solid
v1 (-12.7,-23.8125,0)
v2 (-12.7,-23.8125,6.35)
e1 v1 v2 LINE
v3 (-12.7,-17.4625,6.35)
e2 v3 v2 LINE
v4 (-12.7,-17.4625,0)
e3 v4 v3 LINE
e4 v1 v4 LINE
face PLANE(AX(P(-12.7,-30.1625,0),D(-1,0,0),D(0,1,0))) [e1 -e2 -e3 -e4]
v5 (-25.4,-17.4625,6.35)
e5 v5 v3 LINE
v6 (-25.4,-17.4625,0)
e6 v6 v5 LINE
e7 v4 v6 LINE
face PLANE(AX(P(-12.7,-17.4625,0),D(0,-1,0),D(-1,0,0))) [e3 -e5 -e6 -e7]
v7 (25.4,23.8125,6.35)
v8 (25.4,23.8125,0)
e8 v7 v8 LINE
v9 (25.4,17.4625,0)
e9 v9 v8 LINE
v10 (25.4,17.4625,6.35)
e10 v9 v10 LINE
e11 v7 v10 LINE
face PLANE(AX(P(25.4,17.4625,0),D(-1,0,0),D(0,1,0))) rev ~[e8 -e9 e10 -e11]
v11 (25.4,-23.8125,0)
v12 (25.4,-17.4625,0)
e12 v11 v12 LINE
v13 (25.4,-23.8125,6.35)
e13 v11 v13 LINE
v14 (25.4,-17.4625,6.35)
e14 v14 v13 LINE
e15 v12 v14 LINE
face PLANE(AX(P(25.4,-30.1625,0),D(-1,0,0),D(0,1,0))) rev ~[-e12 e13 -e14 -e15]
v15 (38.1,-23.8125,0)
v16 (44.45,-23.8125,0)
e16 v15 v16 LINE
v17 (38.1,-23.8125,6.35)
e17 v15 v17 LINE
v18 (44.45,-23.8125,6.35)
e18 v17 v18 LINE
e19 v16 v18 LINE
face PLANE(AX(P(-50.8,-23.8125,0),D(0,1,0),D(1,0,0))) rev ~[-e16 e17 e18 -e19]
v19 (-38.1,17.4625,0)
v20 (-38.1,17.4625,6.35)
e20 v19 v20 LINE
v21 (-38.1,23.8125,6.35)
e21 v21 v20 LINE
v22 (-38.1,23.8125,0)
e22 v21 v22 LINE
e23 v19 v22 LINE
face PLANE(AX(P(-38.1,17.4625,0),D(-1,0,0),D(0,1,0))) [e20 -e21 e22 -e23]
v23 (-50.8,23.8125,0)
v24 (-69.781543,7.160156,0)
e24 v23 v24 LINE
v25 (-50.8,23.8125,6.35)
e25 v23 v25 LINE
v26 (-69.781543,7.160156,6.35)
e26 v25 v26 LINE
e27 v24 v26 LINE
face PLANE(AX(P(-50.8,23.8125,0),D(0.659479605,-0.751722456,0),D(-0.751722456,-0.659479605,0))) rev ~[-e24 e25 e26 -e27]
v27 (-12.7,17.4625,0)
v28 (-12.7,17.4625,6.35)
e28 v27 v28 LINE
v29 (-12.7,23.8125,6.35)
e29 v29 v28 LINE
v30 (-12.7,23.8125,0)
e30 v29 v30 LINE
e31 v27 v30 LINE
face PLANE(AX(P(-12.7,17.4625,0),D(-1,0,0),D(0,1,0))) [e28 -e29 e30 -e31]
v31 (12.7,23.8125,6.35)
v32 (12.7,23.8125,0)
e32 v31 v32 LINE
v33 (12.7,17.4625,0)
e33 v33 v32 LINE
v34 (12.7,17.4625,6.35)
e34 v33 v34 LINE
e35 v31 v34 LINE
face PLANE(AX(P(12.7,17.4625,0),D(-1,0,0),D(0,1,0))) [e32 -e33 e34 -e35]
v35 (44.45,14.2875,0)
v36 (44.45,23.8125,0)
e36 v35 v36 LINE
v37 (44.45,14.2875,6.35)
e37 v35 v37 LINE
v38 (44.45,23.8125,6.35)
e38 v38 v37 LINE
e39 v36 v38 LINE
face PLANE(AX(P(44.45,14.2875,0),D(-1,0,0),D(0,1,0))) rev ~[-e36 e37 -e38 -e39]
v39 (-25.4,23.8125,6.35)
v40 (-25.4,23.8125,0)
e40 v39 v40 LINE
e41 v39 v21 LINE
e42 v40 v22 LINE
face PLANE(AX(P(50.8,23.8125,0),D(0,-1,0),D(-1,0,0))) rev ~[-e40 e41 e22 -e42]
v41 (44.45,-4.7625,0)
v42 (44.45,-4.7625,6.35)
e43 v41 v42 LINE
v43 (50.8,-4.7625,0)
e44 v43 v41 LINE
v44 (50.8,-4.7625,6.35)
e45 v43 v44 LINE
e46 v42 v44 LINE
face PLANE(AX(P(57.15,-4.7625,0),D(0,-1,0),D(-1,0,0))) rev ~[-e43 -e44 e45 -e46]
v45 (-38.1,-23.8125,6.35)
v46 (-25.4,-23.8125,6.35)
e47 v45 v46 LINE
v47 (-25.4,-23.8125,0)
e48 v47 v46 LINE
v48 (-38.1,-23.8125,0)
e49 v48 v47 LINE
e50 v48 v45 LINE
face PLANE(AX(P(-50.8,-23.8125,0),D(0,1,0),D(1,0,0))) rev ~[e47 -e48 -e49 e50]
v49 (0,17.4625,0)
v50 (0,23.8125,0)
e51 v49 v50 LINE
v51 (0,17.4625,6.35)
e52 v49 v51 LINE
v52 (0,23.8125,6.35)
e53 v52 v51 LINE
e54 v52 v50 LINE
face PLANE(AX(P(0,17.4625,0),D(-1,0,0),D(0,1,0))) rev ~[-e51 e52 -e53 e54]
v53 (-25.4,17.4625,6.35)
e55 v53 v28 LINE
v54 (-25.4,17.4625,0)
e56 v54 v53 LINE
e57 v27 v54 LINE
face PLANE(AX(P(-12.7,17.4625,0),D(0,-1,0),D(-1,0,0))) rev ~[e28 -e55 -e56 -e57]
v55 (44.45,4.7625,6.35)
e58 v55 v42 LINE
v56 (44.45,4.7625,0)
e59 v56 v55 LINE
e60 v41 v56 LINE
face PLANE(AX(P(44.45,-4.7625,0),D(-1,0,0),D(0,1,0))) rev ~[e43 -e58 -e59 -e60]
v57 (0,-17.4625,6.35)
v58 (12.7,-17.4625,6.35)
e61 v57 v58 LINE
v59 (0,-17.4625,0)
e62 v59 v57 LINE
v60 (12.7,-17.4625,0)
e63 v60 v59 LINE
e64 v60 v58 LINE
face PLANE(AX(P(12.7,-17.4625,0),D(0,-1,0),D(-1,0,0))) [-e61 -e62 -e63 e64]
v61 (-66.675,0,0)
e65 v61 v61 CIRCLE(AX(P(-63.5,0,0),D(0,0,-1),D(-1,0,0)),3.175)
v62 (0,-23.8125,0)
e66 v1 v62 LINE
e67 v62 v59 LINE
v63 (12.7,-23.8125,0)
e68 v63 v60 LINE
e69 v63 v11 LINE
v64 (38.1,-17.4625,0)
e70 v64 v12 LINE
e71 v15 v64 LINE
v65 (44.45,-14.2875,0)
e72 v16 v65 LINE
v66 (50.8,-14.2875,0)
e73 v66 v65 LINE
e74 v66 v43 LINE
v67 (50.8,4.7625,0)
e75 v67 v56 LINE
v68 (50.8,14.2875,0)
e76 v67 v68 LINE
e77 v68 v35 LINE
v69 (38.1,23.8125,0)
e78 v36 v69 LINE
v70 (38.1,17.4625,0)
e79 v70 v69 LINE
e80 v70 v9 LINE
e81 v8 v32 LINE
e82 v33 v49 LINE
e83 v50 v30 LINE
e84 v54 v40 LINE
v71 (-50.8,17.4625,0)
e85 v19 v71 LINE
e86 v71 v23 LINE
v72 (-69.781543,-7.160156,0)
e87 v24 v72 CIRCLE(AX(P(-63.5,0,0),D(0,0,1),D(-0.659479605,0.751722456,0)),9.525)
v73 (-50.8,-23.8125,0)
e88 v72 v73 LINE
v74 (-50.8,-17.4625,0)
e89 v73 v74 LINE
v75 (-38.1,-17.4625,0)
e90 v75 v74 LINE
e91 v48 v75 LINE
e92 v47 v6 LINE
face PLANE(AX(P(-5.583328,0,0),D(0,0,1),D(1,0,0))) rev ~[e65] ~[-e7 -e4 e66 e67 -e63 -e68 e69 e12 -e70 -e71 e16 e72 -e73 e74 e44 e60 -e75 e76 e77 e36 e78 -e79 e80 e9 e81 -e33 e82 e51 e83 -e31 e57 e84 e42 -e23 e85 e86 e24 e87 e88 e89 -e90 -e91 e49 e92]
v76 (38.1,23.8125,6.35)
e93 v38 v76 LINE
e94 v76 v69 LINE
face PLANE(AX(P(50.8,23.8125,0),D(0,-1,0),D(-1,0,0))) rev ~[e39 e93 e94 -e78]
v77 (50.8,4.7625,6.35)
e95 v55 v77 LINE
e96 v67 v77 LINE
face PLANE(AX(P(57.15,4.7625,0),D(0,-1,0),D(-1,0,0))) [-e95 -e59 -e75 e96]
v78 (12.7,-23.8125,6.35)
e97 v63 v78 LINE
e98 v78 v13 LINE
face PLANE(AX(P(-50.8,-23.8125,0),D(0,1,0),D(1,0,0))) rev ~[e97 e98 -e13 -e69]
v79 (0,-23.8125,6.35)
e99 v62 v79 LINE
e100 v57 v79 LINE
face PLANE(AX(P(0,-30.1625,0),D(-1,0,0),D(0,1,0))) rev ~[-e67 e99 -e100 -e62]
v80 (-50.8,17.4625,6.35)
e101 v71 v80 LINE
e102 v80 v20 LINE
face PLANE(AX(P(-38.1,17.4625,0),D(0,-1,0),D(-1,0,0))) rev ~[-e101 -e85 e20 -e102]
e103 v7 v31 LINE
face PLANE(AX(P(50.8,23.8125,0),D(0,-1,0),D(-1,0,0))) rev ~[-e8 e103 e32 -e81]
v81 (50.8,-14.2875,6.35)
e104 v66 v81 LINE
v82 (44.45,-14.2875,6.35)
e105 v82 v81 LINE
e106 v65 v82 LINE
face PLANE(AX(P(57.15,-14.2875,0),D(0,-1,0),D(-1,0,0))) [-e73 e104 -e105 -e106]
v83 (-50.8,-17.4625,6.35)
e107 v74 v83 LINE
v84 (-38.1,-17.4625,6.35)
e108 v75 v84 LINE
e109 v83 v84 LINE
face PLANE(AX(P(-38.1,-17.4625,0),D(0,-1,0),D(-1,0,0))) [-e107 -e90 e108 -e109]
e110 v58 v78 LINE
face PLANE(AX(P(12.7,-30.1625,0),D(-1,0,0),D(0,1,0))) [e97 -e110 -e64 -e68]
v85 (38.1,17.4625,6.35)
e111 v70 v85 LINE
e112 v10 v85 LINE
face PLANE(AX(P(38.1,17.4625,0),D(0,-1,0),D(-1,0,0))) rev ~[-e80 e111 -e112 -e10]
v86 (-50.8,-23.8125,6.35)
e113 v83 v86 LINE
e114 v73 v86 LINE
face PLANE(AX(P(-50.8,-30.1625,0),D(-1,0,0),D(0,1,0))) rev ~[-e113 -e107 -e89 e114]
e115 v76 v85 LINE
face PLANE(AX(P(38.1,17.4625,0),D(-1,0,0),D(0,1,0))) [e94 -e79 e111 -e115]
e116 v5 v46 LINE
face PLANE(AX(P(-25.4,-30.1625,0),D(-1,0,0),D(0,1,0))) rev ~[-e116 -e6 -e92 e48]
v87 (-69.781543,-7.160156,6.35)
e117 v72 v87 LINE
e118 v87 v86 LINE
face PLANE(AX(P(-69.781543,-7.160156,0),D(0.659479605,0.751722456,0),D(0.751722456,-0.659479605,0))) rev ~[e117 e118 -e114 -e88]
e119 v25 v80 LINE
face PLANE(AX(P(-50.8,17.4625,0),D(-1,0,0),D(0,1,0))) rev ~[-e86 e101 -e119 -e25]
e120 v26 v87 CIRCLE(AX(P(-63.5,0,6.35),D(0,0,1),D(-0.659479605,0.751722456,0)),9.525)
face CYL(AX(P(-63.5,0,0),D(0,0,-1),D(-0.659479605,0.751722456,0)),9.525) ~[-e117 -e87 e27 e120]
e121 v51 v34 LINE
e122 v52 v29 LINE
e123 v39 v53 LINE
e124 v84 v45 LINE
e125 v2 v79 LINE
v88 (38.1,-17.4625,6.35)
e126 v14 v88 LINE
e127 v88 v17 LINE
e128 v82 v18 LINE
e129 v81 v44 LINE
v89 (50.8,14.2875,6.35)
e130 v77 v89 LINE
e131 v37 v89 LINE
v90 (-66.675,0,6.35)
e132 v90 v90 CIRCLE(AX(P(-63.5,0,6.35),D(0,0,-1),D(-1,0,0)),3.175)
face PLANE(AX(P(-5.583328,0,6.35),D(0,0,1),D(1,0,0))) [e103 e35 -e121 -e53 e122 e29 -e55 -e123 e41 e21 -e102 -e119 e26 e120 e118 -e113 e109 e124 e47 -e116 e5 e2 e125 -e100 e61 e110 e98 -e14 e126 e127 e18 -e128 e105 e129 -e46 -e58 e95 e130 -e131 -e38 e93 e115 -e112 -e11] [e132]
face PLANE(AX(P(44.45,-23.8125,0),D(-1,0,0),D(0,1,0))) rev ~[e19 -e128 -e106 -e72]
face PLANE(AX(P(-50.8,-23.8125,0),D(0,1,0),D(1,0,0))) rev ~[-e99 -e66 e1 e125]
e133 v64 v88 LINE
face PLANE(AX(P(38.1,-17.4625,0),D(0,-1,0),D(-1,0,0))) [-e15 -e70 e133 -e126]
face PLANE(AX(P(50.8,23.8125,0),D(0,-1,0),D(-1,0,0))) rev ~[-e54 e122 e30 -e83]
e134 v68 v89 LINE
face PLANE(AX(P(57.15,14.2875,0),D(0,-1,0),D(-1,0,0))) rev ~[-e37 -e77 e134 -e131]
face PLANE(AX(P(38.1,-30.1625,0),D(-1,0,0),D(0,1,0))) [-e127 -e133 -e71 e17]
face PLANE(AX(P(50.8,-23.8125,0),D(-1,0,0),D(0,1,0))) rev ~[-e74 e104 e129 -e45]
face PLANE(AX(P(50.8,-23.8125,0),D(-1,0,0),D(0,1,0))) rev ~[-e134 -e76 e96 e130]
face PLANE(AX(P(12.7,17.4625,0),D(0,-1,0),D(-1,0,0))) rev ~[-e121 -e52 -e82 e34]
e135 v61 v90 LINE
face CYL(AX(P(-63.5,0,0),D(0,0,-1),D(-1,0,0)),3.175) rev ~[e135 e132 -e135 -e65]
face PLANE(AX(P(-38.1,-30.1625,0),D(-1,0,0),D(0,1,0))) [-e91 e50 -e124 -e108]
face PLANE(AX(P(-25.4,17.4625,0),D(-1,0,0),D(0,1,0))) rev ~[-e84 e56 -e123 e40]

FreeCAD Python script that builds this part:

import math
import FreeCAD as App
import Part
import Sketcher

V = App.Vector
Q = App.Units.Quantity

doc = App.newDocument("Part")
body = doc.addObject("PartDesign::Body", "Body")

# Sketch on XY plane
sketch1 = doc.addObject("Sketcher::SketchObject", "Sketch")
body.addObject(sketch1)
sketch1.AttachmentSupport = (doc.XY_Plane, [""])
sketch1.MapMode = "FlatFace"
sketch1.addGeometry([
    Part.LineSegment(V(-50.8, -23.8125, 0), V(50.8, -23.8125, 0)),  # 0
    Part.LineSegment(V(50.8, -23.8125, 0), V(50.8, 23.8125, 0)),  # 1
    Part.LineSegment(V(50.8, 23.8125, 0), V(-50.8, 23.8125, 0)),  # 2
    Part.LineSegment(V(-50.8, 23.8125, 0), V(-69.781543, 7.160156, 0)),  # 3
    Part.ArcOfCircle(Part.Circle(V(-63.5, 0, 0), V(0, 0, 1), 9.525), math.radians(131.260197), math.radians(228.739803)),  # 4
    Part.LineSegment(V(-69.781543, -7.160156, 0), V(-50.8, -23.8125, 0)),  # 5
], False)
sketch1.addConstraint([
    Sketcher.Constraint("Coincident", 0, 2, 1, 1),
    Sketcher.Constraint("Coincident", 1, 2, 2, 1),
    Sketcher.Constraint("Coincident", 2, 2, 3, 1),
    Sketcher.Constraint("Tangent", 3, 2, 4, 1),
    Sketcher.Constraint("Tangent", 4, 2, 5, 1),
    Sketcher.Constraint("Coincident", 5, 2, 0, 1),
    Sketcher.Constraint("Horizontal", 0),
    Sketcher.Constraint("Vertical", 1),
    Sketcher.Constraint("Horizontal", 2),
    Sketcher.Constraint("Symmetric", 0, 2, 2, 2, -1, 1),
    Sketcher.Constraint("Symmetric", 3, 2, 4, 2, -1),
    Sketcher.Constraint("DistanceX", 0, 1, 0, 2, Q("4 in")),
    Sketcher.Constraint("Radius", 4, Q("0.375 in")),
    Sketcher.Constraint("DistanceX", 4, 3, -1, 1, Q("2.5 in")),
    Sketcher.Constraint("DistanceY", 1, 1, 1, 2, Q("1.875 in")),
])
pad1 = doc.addObject("PartDesign::Pad", "Pad")
body.addObject(pad1)
pad1.Profile = sketch1
pad1.Length = Q("0.25 in")

# Sketch on XY plane
sketch2 = doc.addObject("Sketcher::SketchObject", "Sketch001")
body.addObject(sketch2)
sketch2.AttachmentSupport = (doc.XY_Plane, [""])
sketch2.MapMode = "FlatFace"
sketch2.addGeometry(Part.Circle(V(-63.5, 0, 0), V(0, 0, 1), 3.175), False)
sketch2.addConstraint([
    Sketcher.Constraint("PointOnObject", 0, 3, -1),
    Sketcher.Constraint("Diameter", 0, Q("0.25 in")),
    Sketcher.Constraint("DistanceX", 0, 3, -1, 1, Q("2.5 in")),
])
pocket1 = doc.addObject("PartDesign::Pocket", "Pocket")
body.addObject(pocket1)
pocket1.Profile = sketch2
pocket1.Type = "ThroughAll"
pocket1.Reversed = True

# Sketch on XY plane
sketch3 = doc.addObject("Sketcher::SketchObject", "Sketch002")
body.addObject(sketch3)
sketch3.AttachmentSupport = (doc.XY_Plane, [""])
sketch3.MapMode = "FlatFace"
sketch3.addGeometry([
    Part.LineSegment(V(38.1, 30.1625, 0), V(38.1, 17.4625, 0)),  # 0
    Part.LineSegment(V(38.1, 17.4625, 0), V(25.4, 17.4625, 0)),  # 1
    Part.LineSegment(V(25.4, 17.4625, 0), V(25.4, 30.1625, 0)),  # 2
    Part.LineSegment(V(25.4, 30.1625, 0), V(38.1, 30.1625, 0)),  # 3
    Part.LineSegment(V(38.1, -17.4625, 0), V(38.1, -30.1625, 0)),  # 4
    Part.LineSegment(V(38.1, -30.1625, 0), V(25.4, -30.1625, 0)),  # 5
    Part.LineSegment(V(25.4, -30.1625, 0), V(25.4, -17.4625, 0)),  # 6
    Part.LineSegment(V(25.4, -17.4625, 0), V(38.1, -17.4625, 0)),  # 7
], False)
sketch3.addConstraint([
    Sketcher.Constraint("Coincident", 0, 2, 1, 1),
    Sketcher.Constraint("Coincident", 1, 2, 2, 1),
    Sketcher.Constraint("Coincident", 2, 2, 3, 1),
    Sketcher.Constraint("Coincident", 3, 2, 0, 1),
    Sketcher.Constraint("Coincident", 4, 2, 5, 1),
    Sketcher.Constraint("Coincident", 5, 2, 6, 1),
    Sketcher.Constraint("Coincident", 6, 2, 7, 1),
    Sketcher.Constraint("Coincident", 7, 2, 4, 1),
    Sketcher.Constraint("Vertical", 0),
    Sketcher.Constraint("Horizontal", 1),
    Sketcher.Constraint("Vertical", 2),
    Sketcher.Constraint("Horizontal", 3),
    Sketcher.Constraint("Vertical", 4),
    Sketcher.Constraint("Horizontal", 5),
    Sketcher.Constraint("Vertical", 6),
    Sketcher.Constraint("Horizontal", 7),
    Sketcher.Constraint("Symmetric", 3, 2, 4, 2, -1),
    Sketcher.Constraint("Symmetric", 1, 2, 6, 2, -1),
    Sketcher.Constraint("Equal", 7, 0),
    Sketcher.Constraint("DistanceX", 1, 2, 1, 1, Q("0.5 in")),
    Sketcher.Constraint("DistanceX", -1, 1, 1, 2, Q("1 in")),
    Sketcher.Constraint("DistanceY", -1, 1, 0, 2, Q("0.6875 in")),
])
pocket2 = doc.addObject("PartDesign::Pocket", "Pocket001")
body.addObject(pocket2)
pocket2.Profile = sketch3
pocket2.Type = "ThroughAll"
pocket2.Reversed = True
doc.recompute()

linearpattern = doc.addObject("PartDesign::LinearPattern", "LinearPattern")
body.addObject(linearpattern)
linearpattern.Originals = [pocket2]
linearpattern.Direction = (doc.X_Axis, [""])
linearpattern.Mode = "offset"
linearpattern.Offset = Q("1 in")
linearpattern.Occurrences = 4
linearpattern.Reversed = True
body.Tip = linearpattern

# Sketch on XY plane
sketch4 = doc.addObject("Sketcher::SketchObject", "Sketch003")
body.addObject(sketch4)
sketch4.AttachmentSupport = (doc.XY_Plane, [""])
sketch4.MapMode = "FlatFace"
sketch4.addGeometry([
    Part.LineSegment(V(57.15, 4.7625, 0), V(57.15, -4.7625, 0)),
    Part.LineSegment(V(57.15, -4.7625, 0), V(44.45, -4.7625, 0)),
    Part.LineSegment(V(44.45, -4.7625, 0), V(44.45, 4.7625, 0)),
    Part.LineSegment(V(44.45, 4.7625, 0), V(57.15, 4.7625, 0)),
], False)
sketch4.addConstraint([
    Sketcher.Constraint("Coincident", 0, 2, 1, 1),
    Sketcher.Constraint("Coincident", 1, 2, 2, 1),
    Sketcher.Constraint("Coincident", 2, 2, 3, 1),
    Sketcher.Constraint("Coincident", 3, 2, 0, 1),
    Sketcher.Constraint("Vertical", 0),
    Sketcher.Constraint("Horizontal", 1),
    Sketcher.Constraint("Vertical", 2),
    Sketcher.Constraint("Horizontal", 3),
    Sketcher.Constraint("DistanceX", 1, 2, 1, 1, Q("0.5 in")),
    Sketcher.Constraint("DistanceY", 0, 2, 0, 1, Q("0.375 in")),
    Sketcher.Constraint("DistanceX", -1, 1, 0, 2, Q("2.25 in")),
    Sketcher.Constraint("DistanceY", 0, 2, -1, 1, Q("0.1875 in")),
])
pocket3 = doc.addObject("PartDesign::Pocket", "Pocket002")
body.addObject(pocket3)
pocket3.Profile = sketch4
pocket3.Type = "ThroughAll"
pocket3.Reversed = True
doc.recompute()

linearpattern2 = doc.addObject("PartDesign::LinearPattern", "LinearPattern001")
body.addObject(linearpattern2)
linearpattern2.Originals = [pocket3]
linearpattern2.Direction = (doc.Y_Axis, [""])
linearpattern2.Mode = "offset"
linearpattern2.Offset = Q("0.75 in")
linearpattern2.Occurrences = 2
linearpattern2.Reversed = True
body.Tip = linearpattern2
doc.recompute()

linearpattern3 = doc.addObject("PartDesign::LinearPattern", "LinearPattern002")
body.addObject(linearpattern3)
linearpattern3.Originals = [pocket3]
linearpattern3.Direction = (doc.Y_Axis, [""])
linearpattern3.Mode = "offset"
linearpattern3.Offset = Q("0.75 in")
linearpattern3.Occurrences = 2
body.Tip = linearpattern3

doc.recompute()
